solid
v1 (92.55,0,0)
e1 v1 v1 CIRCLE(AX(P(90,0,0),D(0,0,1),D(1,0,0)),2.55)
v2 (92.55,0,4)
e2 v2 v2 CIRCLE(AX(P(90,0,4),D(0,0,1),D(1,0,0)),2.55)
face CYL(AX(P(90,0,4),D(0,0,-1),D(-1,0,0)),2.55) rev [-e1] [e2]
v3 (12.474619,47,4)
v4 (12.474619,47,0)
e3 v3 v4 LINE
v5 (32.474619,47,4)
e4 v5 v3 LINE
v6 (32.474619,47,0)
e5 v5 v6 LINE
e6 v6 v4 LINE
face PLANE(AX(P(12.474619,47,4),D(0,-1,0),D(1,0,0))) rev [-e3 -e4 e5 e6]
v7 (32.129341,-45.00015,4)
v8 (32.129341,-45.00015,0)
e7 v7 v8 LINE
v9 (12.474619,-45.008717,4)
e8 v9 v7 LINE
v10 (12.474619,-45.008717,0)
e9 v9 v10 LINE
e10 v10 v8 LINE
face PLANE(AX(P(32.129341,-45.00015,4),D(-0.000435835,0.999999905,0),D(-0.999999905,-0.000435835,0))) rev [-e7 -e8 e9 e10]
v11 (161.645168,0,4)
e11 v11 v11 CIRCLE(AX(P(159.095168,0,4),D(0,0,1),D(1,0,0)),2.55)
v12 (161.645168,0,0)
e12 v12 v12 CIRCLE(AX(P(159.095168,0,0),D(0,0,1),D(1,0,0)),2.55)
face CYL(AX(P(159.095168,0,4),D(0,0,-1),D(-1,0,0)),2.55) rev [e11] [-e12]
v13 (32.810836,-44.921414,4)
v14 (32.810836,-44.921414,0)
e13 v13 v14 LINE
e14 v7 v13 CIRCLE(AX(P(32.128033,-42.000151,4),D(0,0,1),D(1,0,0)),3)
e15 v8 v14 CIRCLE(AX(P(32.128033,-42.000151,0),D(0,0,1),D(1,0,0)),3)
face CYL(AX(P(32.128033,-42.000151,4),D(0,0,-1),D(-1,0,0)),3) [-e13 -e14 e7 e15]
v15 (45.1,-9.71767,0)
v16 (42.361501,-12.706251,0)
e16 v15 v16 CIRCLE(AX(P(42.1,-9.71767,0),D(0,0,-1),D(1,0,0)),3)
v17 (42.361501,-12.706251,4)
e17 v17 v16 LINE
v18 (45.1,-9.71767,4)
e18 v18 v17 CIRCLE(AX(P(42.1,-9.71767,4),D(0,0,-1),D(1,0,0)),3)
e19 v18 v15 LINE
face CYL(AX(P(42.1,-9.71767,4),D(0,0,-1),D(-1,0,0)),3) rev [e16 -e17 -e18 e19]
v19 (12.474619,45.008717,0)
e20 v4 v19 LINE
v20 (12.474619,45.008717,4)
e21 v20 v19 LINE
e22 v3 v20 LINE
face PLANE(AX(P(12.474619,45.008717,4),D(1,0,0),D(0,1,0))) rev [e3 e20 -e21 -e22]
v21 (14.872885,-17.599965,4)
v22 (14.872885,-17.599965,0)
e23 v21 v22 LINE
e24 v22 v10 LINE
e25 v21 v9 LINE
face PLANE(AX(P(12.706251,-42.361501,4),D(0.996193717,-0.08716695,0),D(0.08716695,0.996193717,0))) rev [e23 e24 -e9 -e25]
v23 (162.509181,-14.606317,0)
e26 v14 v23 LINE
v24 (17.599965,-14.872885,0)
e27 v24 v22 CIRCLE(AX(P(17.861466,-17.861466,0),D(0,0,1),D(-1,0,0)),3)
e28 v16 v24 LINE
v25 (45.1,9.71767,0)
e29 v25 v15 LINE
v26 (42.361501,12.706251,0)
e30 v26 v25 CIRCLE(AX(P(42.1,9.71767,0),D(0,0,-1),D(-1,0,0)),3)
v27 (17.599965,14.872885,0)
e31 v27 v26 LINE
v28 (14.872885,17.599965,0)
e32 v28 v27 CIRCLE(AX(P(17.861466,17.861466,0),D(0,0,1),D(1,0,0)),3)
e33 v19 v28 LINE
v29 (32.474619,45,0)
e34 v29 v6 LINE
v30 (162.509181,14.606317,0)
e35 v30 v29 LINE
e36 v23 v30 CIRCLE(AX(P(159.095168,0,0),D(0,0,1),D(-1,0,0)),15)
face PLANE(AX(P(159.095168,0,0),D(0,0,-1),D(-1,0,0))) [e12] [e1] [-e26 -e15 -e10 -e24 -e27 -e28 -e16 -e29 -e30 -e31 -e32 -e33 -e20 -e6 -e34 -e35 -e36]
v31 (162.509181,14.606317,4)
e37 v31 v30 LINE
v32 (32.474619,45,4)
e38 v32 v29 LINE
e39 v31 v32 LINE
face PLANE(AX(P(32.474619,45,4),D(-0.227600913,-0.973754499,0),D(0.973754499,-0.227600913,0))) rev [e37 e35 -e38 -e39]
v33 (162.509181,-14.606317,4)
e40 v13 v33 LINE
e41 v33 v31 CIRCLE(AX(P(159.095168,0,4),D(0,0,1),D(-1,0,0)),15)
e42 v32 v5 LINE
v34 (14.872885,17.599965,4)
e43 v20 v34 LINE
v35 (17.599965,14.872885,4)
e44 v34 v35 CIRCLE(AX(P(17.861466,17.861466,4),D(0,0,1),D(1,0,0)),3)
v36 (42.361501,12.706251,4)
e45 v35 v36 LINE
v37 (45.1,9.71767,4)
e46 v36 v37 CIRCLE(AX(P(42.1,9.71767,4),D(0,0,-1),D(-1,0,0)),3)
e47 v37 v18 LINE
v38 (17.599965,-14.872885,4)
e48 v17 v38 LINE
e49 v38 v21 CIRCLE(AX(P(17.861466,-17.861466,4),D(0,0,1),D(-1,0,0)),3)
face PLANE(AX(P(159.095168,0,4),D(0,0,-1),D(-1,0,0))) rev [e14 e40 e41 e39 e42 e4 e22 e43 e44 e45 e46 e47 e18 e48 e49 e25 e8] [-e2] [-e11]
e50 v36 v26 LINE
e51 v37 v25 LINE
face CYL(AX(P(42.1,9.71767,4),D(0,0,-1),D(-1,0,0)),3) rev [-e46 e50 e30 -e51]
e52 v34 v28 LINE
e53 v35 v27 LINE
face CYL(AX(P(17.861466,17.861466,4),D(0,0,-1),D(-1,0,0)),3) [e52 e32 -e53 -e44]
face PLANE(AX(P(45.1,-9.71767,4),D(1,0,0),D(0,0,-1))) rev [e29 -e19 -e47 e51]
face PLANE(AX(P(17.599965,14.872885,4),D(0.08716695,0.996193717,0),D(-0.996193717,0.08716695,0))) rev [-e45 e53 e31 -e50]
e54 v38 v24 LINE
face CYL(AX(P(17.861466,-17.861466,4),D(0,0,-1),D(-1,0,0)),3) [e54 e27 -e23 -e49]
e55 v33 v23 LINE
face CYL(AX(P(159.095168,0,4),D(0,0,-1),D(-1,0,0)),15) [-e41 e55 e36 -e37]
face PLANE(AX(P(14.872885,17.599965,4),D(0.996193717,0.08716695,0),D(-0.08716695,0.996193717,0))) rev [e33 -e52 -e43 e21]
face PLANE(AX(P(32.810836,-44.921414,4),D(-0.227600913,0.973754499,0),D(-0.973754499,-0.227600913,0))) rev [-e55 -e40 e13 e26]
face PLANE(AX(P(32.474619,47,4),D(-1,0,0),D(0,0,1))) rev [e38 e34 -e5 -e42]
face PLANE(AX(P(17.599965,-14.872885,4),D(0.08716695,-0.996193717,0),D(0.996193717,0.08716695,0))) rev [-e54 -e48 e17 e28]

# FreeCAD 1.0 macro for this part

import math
import FreeCAD as App
import Part
import Sketcher

doc = App.newDocument("Part")
body = doc.addObject("PartDesign::Body", "Body")

# Sketch on XY plane
sketch1 = body.newObject("Sketcher::SketchObject", "Sketch")
sketch1.AttachmentSupport = (doc.getObject("XY_Plane"), [""])
sketch1.MapMode = "FlatFace"
sketch1.addGeometry([
    Part.LineSegment(App.Vector(12.7, 42.4, 0), App.Vector(14.9, 17.6, 0)),  # 0
    Part.ArcOfCircle(Part.Circle(App.Vector(17.9, 17.9, 0), App.Vector(0, 0, 1), 3), math.radians(-175), math.radians(-95)),  # 1
    Part.LineSegment(App.Vector(17.6, 14.9, 0), App.Vector(42.4, 12.7, 0)),  # 2
    Part.ArcOfCircle(Part.Circle(App.Vector(42.1, 9.7, 0), App.Vector(0, 0, 1), 3), math.radians(0), math.radians(85)),  # 3
    Part.LineSegment(App.Vector(45.1, 9.7, 0), App.Vector(45.1, -9.7, 0)),  # 4
    Part.ArcOfCircle(Part.Circle(App.Vector(42.1, -9.7, 0), App.Vector(0, 0, 1), 3), math.radians(-85), math.radians(0)),  # 5
    Part.LineSegment(App.Vector(42.4, -12.7, 0), App.Vector(17.6, -14.9, 0)),  # 6
    Part.ArcOfCircle(Part.Circle(App.Vector(17.9, -17.9, 0), App.Vector(0, 0, 1), 3), math.radians(95), math.radians(175)),  # 7
    Part.LineSegment(App.Vector(14.9, -17.6, 0), App.Vector(12.7, -42.4, 0)),  # 8
    Part.LineSegment(App.Vector(12.7, -42.4, 0), App.Vector(12.5, -45, 0)),  # 9
    Part.LineSegment(App.Vector(12.5, -45, 0), App.Vector(32.1, -45, 0)),  # 10
    Part.ArcOfCircle(Part.Circle(App.Vector(32.1, -42, 0), App.Vector(0, 0, 1), 3), math.radians(-89.98), math.radians(-76.84)),  # 11
    Part.LineSegment(App.Vector(32.8, -44.9, 0), App.Vector(162.5, -14.6, 0)),  # 12
    Part.ArcOfCircle(Part.Circle(App.Vector(159.1, 0, 0), App.Vector(0, 0, 1), 15), math.radians(-77), math.radians(77)),  # 13
    Part.LineSegment(App.Vector(162.5, 14.6, 0), App.Vector(32.5, 45, 0)),  # 14
    Part.LineSegment(App.Vector(32.5, 45, 0), App.Vector(32.5, 47, 0)),  # 15
    Part.LineSegment(App.Vector(32.5, 47, 0), App.Vector(12.5, 47, 0)),  # 16
    Part.LineSegment(App.Vector(12.5, 47, 0), App.Vector(12.5, 45, 0)),  # 17
    Part.LineSegment(App.Vector(12.5, 45, 0), App.Vector(12.7, 42.4, 0)),  # 18
    Part.Circle(App.Vector(159.1, 0, 0), App.Vector(0, 0, 1), 2.5),  # 19
    Part.Circle(App.Vector(90, 0, 0), App.Vector(0, 0, 1), 2.5),  # 20
], False)
sketch1.addConstraint([
    Sketcher.Constraint("Tangent", 0, 2, 1, 1),
    Sketcher.Constraint("Tangent", 1, 2, 2, 1),
    Sketcher.Constraint("Tangent", 2, 2, 3, 2),
    Sketcher.Constraint("Tangent", 3, 1, 4, 1),
    Sketcher.Constraint("Tangent", 4, 2, 5, 2),
    Sketcher.Constraint("Tangent", 5, 1, 6, 1),
    Sketcher.Constraint("Tangent", 6, 2, 7, 1),
    Sketcher.Constraint("Tangent", 7, 2, 8, 1),
    Sketcher.Constraint("Coincident", 8, 2, 9, 1),
    Sketcher.Constraint("Coincident", 9, 2, 10, 1),
    Sketcher.Constraint("Tangent", 10, 2, 11, 1),
    Sketcher.Constraint("Tangent", 11, 2, 12, 1),
    Sketcher.Constraint("Tangent", 12, 2, 13, 1),
    Sketcher.Constraint("Tangent", 13, 2, 14, 1),
    Sketcher.Constraint("Coincident", 14, 2, 15, 1),
    Sketcher.Constraint("Coincident", 15, 2, 16, 1),
    Sketcher.Constraint("Coincident", 16, 2, 17, 1),
    Sketcher.Constraint("Coincident", 17, 2, 18, 1),
    Sketcher.Constraint("Coincident", 18, 2, 0, 1),
    Sketcher.Constraint("Vertical", 4),
    Sketcher.Constraint("Vertical", 15),
    Sketcher.Constraint("Horizontal", 16),
    Sketcher.Constraint("Vertical", 17),
    Sketcher.Constraint("Coincident", 19, 3, 13, 3),
    Sketcher.Constraint("Equal", 1, 3),
    Sketcher.Constraint("Equal", 3, 5),
    Sketcher.Constraint("Equal", 5, 7),
    Sketcher.Constraint("Equal", 7, 11),
    Sketcher.Constraint("Equal", 19, 20),
    Sketcher.Constraint("Symmetric", 1, 3, 7, 3, -1),
    Sketcher.Constraint("Symmetric", 12, 2, 13, 2, -1),
    Sketcher.Constraint("Symmetric", 9, 2, 17, 2, -1),
    Sketcher.Constraint("Symmetric", 8, 2, 18, 2, -1),
    Sketcher.Constraint("PointOnObject", 20, 3, -1),
    Sketcher.Constraint("Perpendicular", 0, 6),
    Sketcher.Constraint("Perpendicular", 2, 8),
    Sketcher.Constraint("Parallel", 8, 9),
    Sketcher.Constraint("Equal", 0, 2),
    Sketcher.Constraint("Radius", 1, 3.0),
    Sketcher.Constraint("Radius", 13, 15.0),
    Sketcher.Constraint("Diameter", 19, 5.1),
    Sketcher.Constraint("DistanceX", 16, 2, 16, 1, 20.0),
    Sketcher.Constraint("DistanceY", 15, 1, 15, 2, 2.0),
    Sketcher.Constraint("DistanceX", -1, 1, 20, 3, 90.0),
    Sketcher.Constraint("DistanceY", -1, 1, 14, 2, 45.0),
    Sketcher.Constraint("DistanceX", -1, 1, 3, 3, 42.1),
    Sketcher.Constraint("DistanceY", 4, 2, 4, 1, 19.435339),
    Sketcher.Constraint("DistanceX", -1, 1, 2, 2, 42.361501),
    Sketcher.Constraint("DistanceY", 8, 2, -1, 1, 42.361501),
    Sketcher.Constraint("DistanceX", 1, 3, 13, 3, 141.233702),
    Sketcher.Constraint("Distance", 9, 2.65733),
    Sketcher.Constraint("Distance", 12, 133.194091),
])
pad1 = body.newObject("PartDesign::Pad", "Pad")
pad1.Profile = sketch1
pad1.Length = 4

doc.recompute()
